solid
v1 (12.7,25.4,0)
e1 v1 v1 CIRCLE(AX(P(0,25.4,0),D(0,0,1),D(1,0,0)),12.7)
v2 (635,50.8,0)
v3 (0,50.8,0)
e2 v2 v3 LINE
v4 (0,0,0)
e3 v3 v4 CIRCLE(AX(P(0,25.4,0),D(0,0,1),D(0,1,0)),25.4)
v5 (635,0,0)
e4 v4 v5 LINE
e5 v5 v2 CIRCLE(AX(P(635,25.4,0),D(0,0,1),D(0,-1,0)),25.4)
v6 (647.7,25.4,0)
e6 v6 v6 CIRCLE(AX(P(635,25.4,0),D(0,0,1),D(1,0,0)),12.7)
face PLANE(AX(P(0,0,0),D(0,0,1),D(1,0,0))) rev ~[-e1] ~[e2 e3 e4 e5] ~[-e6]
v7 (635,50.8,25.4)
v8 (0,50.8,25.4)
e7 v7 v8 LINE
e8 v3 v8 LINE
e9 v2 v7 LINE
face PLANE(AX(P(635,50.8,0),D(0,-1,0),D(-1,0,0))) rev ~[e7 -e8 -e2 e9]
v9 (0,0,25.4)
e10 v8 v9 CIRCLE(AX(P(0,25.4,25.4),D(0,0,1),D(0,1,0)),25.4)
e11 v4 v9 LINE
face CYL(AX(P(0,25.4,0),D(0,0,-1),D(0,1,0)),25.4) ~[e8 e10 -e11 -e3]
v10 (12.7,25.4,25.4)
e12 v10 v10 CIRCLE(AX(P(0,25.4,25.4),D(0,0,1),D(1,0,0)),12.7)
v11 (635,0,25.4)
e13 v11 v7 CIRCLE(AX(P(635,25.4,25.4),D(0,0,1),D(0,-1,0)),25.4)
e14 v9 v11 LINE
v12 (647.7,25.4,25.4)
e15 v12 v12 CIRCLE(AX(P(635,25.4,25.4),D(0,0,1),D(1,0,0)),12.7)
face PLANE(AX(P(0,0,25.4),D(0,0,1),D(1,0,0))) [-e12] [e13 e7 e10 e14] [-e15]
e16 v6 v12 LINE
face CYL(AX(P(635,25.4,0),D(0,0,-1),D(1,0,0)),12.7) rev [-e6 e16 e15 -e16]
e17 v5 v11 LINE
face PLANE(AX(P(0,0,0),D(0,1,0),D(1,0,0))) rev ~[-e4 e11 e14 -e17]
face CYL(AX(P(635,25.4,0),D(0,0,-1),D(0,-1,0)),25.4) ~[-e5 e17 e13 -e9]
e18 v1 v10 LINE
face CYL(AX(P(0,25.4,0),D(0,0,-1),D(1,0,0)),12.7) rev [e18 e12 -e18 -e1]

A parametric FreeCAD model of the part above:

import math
import FreeCAD as App
import Part
import Sketcher
from FreeCAD import Vector
Q = App.Units.Quantity

doc = App.newDocument("Part")
body = doc.addObject("PartDesign::Body", "Body")

# Sketch on XY plane
sketch1 = body.newObject("Sketcher::SketchObject", "Sketch")
sketch1.AttachmentSupport = (doc.getObject("XY_Plane"), [""])
sketch1.MapMode = "FlatFace"
sketch1.addGeometry([
    Part.ArcOfCircle(Part.Circle(Vector(0, 25.4, 0), Vector(0, 0, 1), 25.4), math.radians(90), math.radians(270)),  # 0
    Part.LineSegment(Vector(0, 0, 0), Vector(635, 0, 0)),  # 1
    Part.ArcOfCircle(Part.Circle(Vector(635, 25.4, 0), Vector(0, 0, 1), 25.4), math.radians(-90), math.radians(90)),  # 2
    Part.LineSegment(Vector(635, 50.8, 0), Vector(0, 50.8, 0)),  # 3
    Part.Circle(Vector(0, 25.4, 0), Vector(0, 0, 1), 12.7),  # 4
    Part.Circle(Vector(635, 25.4, 0), Vector(0, 0, 1), 12.7),  # 5
], False)
sketch1.addConstraint([
    Sketcher.Constraint("Tangent", 0, 2, 1, 1),
    Sketcher.Constraint("Tangent", 1, 2, 2, 1),
    Sketcher.Constraint("Tangent", 2, 2, 3, 1),
    Sketcher.Constraint("Tangent", 3, 2, 0, 1),
    Sketcher.Constraint("Horizontal", 1),
    Sketcher.Constraint("Horizontal", 3),
    Sketcher.Constraint("Coincident", 0, 2, -1, 1),
    Sketcher.Constraint("Coincident", 4, 3, 0, 3),
    Sketcher.Constraint("Coincident", 5, 3, 2, 3),
    Sketcher.Constraint("Equal", 4, 5),
    Sketcher.Constraint("Diameter", 4, Q("1 in")),
    Sketcher.Constraint("Radius", 0, Q("1 in")),
    Sketcher.Constraint("DistanceX", 1, 1, 1, 2, Q("25 in")),
])
pad1 = body.newObject("PartDesign::Pad", "Pad")
pad1.Profile = sketch1
pad1.Length = Q("1 in")

doc.recompute()
